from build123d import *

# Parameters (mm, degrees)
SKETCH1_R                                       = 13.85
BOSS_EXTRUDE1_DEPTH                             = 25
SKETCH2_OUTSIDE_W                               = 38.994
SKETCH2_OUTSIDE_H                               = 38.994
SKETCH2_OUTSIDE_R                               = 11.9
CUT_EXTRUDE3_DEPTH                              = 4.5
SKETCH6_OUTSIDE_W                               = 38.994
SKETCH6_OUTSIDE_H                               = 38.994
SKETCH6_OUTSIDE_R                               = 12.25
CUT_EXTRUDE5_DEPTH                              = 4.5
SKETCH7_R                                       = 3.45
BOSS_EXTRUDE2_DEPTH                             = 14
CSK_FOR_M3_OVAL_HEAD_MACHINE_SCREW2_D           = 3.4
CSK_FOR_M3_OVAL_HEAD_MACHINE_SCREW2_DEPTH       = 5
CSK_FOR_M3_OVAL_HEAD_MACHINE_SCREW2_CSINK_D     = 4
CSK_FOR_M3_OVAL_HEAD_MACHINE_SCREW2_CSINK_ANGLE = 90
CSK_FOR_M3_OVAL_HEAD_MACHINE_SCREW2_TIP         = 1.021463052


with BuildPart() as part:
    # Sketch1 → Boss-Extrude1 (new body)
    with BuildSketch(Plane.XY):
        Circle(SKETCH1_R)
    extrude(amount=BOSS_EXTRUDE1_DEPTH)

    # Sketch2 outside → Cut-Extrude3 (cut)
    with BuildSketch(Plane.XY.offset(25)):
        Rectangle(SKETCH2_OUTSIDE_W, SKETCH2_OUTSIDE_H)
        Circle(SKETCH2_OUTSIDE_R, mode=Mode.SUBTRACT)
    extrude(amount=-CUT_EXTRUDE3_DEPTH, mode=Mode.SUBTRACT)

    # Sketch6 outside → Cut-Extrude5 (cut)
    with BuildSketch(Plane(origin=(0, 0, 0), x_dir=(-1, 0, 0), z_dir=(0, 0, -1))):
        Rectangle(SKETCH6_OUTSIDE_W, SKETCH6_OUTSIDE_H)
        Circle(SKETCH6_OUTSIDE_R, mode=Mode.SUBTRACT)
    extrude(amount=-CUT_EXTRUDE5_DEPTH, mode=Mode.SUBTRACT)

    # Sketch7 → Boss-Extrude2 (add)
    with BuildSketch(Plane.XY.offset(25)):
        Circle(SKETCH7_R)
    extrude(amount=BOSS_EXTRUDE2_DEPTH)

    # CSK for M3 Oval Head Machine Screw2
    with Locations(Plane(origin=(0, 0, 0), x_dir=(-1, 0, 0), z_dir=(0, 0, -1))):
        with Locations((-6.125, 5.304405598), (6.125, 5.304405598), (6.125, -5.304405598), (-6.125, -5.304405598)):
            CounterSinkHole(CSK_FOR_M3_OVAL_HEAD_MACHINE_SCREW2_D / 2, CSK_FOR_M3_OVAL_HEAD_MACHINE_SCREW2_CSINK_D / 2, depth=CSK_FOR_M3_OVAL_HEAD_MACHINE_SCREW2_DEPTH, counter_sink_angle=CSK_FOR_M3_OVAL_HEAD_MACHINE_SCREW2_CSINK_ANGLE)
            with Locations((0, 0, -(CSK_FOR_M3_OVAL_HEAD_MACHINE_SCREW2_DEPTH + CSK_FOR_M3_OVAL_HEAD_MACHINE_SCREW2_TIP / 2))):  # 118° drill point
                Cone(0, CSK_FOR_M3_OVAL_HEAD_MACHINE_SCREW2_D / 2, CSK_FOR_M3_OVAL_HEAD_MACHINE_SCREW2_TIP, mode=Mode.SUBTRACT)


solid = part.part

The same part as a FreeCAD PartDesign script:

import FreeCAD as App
import Part
import Sketcher
from FreeCAD import Vector
Q = App.Units.Quantity

doc = App.newDocument("Part")
body = doc.addObject("PartDesign::Body", "Body")

# Sketch on XY plane
sketch1 = body.newObject("Sketcher::SketchObject", "Sketch")
sketch1.AttachmentSupport = (doc.getObject("XY_Plane"), [""])
sketch1.MapMode = "FlatFace"
sketch1.addGeometry(Part.Circle(Vector(0, 0, 0), Vector(0, 0, 1), 13.85), False)
sketch1.addConstraint(Sketcher.Constraint("Coincident", 0, 3, -1, 1))
sketch1.addConstraint(Sketcher.Constraint("Diameter", 0, Q("27.7 mm")))
pad1 = body.newObject("PartDesign::Pad", "Pad")
pad1.Profile = sketch1
pad1.Length = 25

# Sketch on XY plane
sketch2 = body.newObject("Sketcher::SketchObject", "Sketch001")
sketch2.AttachmentSupport = (doc.getObject("XY_Plane"), [""])
sketch2.MapMode = "FlatFace"
sketch2.AttachmentOffset = App.Placement(Vector(0, 0, 25), App.Rotation())
sketch2.addGeometry(Part.LineSegment(Vector(-19.497, 19.497, 0), Vector(-19.497, -19.497, 0)), False)
sketch2.addGeometry(Part.LineSegment(Vector(-19.497, -19.497, 0), Vector(19.497, -19.497, 0)), False)
sketch2.addGeometry(Part.LineSegment(Vector(19.497, -19.497, 0), Vector(19.497, 19.497, 0)), False)
sketch2.addGeometry(Part.LineSegment(Vector(19.497, 19.497, 0), Vector(-19.497, 19.497, 0)), False)
sketch2.addGeometry(Part.Circle(Vector(0, 0, 0), Vector(0, 0, 1), 11.9), False)
sketch2.addConstraint(Sketcher.Constraint("Coincident", 0, 2, 1, 1))
sketch2.addConstraint(Sketcher.Constraint("Coincident", 1, 2, 2, 1))
sketch2.addConstraint(Sketcher.Constraint("Coincident", 2, 2, 3, 1))
sketch2.addConstraint(Sketcher.Constraint("Coincident", 3, 2, 0, 1))
sketch2.addConstraint(Sketcher.Constraint("Vertical", 0))
sketch2.addConstraint(Sketcher.Constraint("Horizontal", 1))
sketch2.addConstraint(Sketcher.Constraint("Vertical", 2))
sketch2.addConstraint(Sketcher.Constraint("Horizontal", 3))
sketch2.addConstraint(Sketcher.Constraint("Coincident", 4, 3, -1, 1))
sketch2.addConstraint(Sketcher.Constraint("Symmetric", 0, 2, 2, 2, -1, 1))
sketch2.addConstraint(Sketcher.Constraint("Equal", 3, 0))
sketch2.addConstraint(Sketcher.Constraint("Diameter", 4, Q("23.8 mm")))
sketch2.addConstraint(Sketcher.Constraint("DistanceX", 1, 1, 1, 2, Q("38.994 mm")))
pocket1 = body.newObject("PartDesign::Pocket", "Pocket")
pocket1.Profile = sketch2
pocket1.Length = 4.5

# Sketch on XY plane
sketch3 = body.newObject("Sketcher::SketchObject", "Sketch002")
sketch3.AttachmentSupport = (doc.getObject("XY_Plane"), [""])
sketch3.MapMode = "FlatFace"
sketch3.addGeometry(Part.LineSegment(Vector(19.497, 19.497, 0), Vector(19.497, -19.497, 0)), False)
sketch3.addGeometry(Part.LineSegment(Vector(19.497, -19.497, 0), Vector(-19.497, -19.497, 0)), False)
sketch3.addGeometry(Part.LineSegment(Vector(-19.497, -19.497, 0), Vector(-19.497, 19.497, 0)), False)
sketch3.addGeometry(Part.LineSegment(Vector(-19.497, 19.497, 0), Vector(19.497, 19.497, 0)), False)
sketch3.addGeometry(Part.Circle(Vector(0, 0, 0), Vector(0, 0, 1), 12.25), False)
sketch3.addConstraint(Sketcher.Constraint("Coincident", 0, 2, 1, 1))
sketch3.addConstraint(Sketcher.Constraint("Coincident", 1, 2, 2, 1))
sketch3.addConstraint(Sketcher.Constraint("Coincident", 2, 2, 3, 1))
sketch3.addConstraint(Sketcher.Constraint("Coincident", 3, 2, 0, 1))
sketch3.addConstraint(Sketcher.Constraint("Vertical", 0))
sketch3.addConstraint(Sketcher.Constraint("Horizontal", 1))
sketch3.addConstraint(Sketcher.Constraint("Vertical", 2))
sketch3.addConstraint(Sketcher.Constraint("Horizontal", 3))
sketch3.addConstraint(Sketcher.Constraint("Coincident", 4, 3, -1, 1))
sketch3.addConstraint(Sketcher.Constraint("Symmetric", 0, 2, 2, 2, -1, 1))
sketch3.addConstraint(Sketcher.Constraint("Equal", 3, 0))
sketch3.addConstraint(Sketcher.Constraint("Diameter", 4, Q("24.5 mm")))
sketch3.addConstraint(Sketcher.Constraint("DistanceX", 1, 2, 1, 1, Q("38.994 mm")))
pocket2 = body.newObject("PartDesign::Pocket", "Pocket001")
pocket2.Profile = sketch3
pocket2.Length = 4.5
pocket2.Reversed = True

# Sketch on XY plane
sketch4 = body.newObject("Sketcher::SketchObject", "Sketch003")
sketch4.AttachmentSupport = (doc.getObject("XY_Plane"), [""])
sketch4.MapMode = "FlatFace"
sketch4.AttachmentOffset = App.Placement(Vector(0, 0, 25), App.Rotation())
sketch4.addGeometry(Part.Circle(Vector(0, 0, 0), Vector(0, 0, 1), 3.45), False)
sketch4.addConstraint(Sketcher.Constraint("Coincident", 0, 3, -1, 1))
sketch4.addConstraint(Sketcher.Constraint("Diameter", 0, Q("6.9 mm")))
pad2 = body.newObject("PartDesign::Pad", "Pad001")
pad2.Profile = sketch4
pad2.Length = 14

# Sketch on XY plane
sketch5 = body.newObject("Sketcher::SketchObject", "Sketch004")
sketch5.AttachmentSupport = (doc.getObject("XY_Plane"), [""])
sketch5.MapMode = "FlatFace"
sketch5.addGeometry(Part.Circle(Vector(6.125, 5.304406, 0), Vector(0, 0, 1), 1.7), False)
sketch5.addGeometry(Part.Circle(Vector(-6.125, 5.304406, 0), Vector(0, 0, 1), 1.7), False)
sketch5.addGeometry(Part.Circle(Vector(-6.125, -5.304406, 0), Vector(0, 0, 1), 1.7), False)
sketch5.addGeometry(Part.Circle(Vector(6.125, -5.304406, 0), Vector(0, 0, 1), 1.7), False)
sketch5.addConstraint(Sketcher.Constraint("Equal", 0, 1))
sketch5.addConstraint(Sketcher.Constraint("Equal", 1, 2))
sketch5.addConstraint(Sketcher.Constraint("Equal", 2, 3))
sketch5.addConstraint(Sketcher.Constraint("Symmetric", 0, 3, 2, 3, -1, 1))
sketch5.addConstraint(Sketcher.Constraint("Symmetric", 1, 3, 3, 3, -1, 1))
sketch5.addConstraint(Sketcher.Constraint("Symmetric", 0, 3, 1, 3, -2))
sketch5.addConstraint(Sketcher.Constraint("Diameter", 0, Q("3.4 mm")))
sketch5.addConstraint(Sketcher.Constraint("DistanceX", 1, 3, 0, 3, Q("12.25 mm")))
sketch5.addConstraint(Sketcher.Constraint("DistanceY", 2, 3, 1, 3, Q("10.608811 mm")))
doc.recompute()
hole = body.newObject("PartDesign::Hole", "Hole")
hole.Profile = sketch5
hole.ThreadType = "None"
hole.Diameter = 3.4
hole.DepthType = "Dimension"
hole.Depth = 5
hole.DrillPoint = "Angled"
hole.DrillPointAngle = 118
hole.HoleCutType = "Countersink"
hole.HoleCutDiameter = 4
hole.HoleCutCountersinkAngle = 90
hole.Reversed = True

doc.recompute()
